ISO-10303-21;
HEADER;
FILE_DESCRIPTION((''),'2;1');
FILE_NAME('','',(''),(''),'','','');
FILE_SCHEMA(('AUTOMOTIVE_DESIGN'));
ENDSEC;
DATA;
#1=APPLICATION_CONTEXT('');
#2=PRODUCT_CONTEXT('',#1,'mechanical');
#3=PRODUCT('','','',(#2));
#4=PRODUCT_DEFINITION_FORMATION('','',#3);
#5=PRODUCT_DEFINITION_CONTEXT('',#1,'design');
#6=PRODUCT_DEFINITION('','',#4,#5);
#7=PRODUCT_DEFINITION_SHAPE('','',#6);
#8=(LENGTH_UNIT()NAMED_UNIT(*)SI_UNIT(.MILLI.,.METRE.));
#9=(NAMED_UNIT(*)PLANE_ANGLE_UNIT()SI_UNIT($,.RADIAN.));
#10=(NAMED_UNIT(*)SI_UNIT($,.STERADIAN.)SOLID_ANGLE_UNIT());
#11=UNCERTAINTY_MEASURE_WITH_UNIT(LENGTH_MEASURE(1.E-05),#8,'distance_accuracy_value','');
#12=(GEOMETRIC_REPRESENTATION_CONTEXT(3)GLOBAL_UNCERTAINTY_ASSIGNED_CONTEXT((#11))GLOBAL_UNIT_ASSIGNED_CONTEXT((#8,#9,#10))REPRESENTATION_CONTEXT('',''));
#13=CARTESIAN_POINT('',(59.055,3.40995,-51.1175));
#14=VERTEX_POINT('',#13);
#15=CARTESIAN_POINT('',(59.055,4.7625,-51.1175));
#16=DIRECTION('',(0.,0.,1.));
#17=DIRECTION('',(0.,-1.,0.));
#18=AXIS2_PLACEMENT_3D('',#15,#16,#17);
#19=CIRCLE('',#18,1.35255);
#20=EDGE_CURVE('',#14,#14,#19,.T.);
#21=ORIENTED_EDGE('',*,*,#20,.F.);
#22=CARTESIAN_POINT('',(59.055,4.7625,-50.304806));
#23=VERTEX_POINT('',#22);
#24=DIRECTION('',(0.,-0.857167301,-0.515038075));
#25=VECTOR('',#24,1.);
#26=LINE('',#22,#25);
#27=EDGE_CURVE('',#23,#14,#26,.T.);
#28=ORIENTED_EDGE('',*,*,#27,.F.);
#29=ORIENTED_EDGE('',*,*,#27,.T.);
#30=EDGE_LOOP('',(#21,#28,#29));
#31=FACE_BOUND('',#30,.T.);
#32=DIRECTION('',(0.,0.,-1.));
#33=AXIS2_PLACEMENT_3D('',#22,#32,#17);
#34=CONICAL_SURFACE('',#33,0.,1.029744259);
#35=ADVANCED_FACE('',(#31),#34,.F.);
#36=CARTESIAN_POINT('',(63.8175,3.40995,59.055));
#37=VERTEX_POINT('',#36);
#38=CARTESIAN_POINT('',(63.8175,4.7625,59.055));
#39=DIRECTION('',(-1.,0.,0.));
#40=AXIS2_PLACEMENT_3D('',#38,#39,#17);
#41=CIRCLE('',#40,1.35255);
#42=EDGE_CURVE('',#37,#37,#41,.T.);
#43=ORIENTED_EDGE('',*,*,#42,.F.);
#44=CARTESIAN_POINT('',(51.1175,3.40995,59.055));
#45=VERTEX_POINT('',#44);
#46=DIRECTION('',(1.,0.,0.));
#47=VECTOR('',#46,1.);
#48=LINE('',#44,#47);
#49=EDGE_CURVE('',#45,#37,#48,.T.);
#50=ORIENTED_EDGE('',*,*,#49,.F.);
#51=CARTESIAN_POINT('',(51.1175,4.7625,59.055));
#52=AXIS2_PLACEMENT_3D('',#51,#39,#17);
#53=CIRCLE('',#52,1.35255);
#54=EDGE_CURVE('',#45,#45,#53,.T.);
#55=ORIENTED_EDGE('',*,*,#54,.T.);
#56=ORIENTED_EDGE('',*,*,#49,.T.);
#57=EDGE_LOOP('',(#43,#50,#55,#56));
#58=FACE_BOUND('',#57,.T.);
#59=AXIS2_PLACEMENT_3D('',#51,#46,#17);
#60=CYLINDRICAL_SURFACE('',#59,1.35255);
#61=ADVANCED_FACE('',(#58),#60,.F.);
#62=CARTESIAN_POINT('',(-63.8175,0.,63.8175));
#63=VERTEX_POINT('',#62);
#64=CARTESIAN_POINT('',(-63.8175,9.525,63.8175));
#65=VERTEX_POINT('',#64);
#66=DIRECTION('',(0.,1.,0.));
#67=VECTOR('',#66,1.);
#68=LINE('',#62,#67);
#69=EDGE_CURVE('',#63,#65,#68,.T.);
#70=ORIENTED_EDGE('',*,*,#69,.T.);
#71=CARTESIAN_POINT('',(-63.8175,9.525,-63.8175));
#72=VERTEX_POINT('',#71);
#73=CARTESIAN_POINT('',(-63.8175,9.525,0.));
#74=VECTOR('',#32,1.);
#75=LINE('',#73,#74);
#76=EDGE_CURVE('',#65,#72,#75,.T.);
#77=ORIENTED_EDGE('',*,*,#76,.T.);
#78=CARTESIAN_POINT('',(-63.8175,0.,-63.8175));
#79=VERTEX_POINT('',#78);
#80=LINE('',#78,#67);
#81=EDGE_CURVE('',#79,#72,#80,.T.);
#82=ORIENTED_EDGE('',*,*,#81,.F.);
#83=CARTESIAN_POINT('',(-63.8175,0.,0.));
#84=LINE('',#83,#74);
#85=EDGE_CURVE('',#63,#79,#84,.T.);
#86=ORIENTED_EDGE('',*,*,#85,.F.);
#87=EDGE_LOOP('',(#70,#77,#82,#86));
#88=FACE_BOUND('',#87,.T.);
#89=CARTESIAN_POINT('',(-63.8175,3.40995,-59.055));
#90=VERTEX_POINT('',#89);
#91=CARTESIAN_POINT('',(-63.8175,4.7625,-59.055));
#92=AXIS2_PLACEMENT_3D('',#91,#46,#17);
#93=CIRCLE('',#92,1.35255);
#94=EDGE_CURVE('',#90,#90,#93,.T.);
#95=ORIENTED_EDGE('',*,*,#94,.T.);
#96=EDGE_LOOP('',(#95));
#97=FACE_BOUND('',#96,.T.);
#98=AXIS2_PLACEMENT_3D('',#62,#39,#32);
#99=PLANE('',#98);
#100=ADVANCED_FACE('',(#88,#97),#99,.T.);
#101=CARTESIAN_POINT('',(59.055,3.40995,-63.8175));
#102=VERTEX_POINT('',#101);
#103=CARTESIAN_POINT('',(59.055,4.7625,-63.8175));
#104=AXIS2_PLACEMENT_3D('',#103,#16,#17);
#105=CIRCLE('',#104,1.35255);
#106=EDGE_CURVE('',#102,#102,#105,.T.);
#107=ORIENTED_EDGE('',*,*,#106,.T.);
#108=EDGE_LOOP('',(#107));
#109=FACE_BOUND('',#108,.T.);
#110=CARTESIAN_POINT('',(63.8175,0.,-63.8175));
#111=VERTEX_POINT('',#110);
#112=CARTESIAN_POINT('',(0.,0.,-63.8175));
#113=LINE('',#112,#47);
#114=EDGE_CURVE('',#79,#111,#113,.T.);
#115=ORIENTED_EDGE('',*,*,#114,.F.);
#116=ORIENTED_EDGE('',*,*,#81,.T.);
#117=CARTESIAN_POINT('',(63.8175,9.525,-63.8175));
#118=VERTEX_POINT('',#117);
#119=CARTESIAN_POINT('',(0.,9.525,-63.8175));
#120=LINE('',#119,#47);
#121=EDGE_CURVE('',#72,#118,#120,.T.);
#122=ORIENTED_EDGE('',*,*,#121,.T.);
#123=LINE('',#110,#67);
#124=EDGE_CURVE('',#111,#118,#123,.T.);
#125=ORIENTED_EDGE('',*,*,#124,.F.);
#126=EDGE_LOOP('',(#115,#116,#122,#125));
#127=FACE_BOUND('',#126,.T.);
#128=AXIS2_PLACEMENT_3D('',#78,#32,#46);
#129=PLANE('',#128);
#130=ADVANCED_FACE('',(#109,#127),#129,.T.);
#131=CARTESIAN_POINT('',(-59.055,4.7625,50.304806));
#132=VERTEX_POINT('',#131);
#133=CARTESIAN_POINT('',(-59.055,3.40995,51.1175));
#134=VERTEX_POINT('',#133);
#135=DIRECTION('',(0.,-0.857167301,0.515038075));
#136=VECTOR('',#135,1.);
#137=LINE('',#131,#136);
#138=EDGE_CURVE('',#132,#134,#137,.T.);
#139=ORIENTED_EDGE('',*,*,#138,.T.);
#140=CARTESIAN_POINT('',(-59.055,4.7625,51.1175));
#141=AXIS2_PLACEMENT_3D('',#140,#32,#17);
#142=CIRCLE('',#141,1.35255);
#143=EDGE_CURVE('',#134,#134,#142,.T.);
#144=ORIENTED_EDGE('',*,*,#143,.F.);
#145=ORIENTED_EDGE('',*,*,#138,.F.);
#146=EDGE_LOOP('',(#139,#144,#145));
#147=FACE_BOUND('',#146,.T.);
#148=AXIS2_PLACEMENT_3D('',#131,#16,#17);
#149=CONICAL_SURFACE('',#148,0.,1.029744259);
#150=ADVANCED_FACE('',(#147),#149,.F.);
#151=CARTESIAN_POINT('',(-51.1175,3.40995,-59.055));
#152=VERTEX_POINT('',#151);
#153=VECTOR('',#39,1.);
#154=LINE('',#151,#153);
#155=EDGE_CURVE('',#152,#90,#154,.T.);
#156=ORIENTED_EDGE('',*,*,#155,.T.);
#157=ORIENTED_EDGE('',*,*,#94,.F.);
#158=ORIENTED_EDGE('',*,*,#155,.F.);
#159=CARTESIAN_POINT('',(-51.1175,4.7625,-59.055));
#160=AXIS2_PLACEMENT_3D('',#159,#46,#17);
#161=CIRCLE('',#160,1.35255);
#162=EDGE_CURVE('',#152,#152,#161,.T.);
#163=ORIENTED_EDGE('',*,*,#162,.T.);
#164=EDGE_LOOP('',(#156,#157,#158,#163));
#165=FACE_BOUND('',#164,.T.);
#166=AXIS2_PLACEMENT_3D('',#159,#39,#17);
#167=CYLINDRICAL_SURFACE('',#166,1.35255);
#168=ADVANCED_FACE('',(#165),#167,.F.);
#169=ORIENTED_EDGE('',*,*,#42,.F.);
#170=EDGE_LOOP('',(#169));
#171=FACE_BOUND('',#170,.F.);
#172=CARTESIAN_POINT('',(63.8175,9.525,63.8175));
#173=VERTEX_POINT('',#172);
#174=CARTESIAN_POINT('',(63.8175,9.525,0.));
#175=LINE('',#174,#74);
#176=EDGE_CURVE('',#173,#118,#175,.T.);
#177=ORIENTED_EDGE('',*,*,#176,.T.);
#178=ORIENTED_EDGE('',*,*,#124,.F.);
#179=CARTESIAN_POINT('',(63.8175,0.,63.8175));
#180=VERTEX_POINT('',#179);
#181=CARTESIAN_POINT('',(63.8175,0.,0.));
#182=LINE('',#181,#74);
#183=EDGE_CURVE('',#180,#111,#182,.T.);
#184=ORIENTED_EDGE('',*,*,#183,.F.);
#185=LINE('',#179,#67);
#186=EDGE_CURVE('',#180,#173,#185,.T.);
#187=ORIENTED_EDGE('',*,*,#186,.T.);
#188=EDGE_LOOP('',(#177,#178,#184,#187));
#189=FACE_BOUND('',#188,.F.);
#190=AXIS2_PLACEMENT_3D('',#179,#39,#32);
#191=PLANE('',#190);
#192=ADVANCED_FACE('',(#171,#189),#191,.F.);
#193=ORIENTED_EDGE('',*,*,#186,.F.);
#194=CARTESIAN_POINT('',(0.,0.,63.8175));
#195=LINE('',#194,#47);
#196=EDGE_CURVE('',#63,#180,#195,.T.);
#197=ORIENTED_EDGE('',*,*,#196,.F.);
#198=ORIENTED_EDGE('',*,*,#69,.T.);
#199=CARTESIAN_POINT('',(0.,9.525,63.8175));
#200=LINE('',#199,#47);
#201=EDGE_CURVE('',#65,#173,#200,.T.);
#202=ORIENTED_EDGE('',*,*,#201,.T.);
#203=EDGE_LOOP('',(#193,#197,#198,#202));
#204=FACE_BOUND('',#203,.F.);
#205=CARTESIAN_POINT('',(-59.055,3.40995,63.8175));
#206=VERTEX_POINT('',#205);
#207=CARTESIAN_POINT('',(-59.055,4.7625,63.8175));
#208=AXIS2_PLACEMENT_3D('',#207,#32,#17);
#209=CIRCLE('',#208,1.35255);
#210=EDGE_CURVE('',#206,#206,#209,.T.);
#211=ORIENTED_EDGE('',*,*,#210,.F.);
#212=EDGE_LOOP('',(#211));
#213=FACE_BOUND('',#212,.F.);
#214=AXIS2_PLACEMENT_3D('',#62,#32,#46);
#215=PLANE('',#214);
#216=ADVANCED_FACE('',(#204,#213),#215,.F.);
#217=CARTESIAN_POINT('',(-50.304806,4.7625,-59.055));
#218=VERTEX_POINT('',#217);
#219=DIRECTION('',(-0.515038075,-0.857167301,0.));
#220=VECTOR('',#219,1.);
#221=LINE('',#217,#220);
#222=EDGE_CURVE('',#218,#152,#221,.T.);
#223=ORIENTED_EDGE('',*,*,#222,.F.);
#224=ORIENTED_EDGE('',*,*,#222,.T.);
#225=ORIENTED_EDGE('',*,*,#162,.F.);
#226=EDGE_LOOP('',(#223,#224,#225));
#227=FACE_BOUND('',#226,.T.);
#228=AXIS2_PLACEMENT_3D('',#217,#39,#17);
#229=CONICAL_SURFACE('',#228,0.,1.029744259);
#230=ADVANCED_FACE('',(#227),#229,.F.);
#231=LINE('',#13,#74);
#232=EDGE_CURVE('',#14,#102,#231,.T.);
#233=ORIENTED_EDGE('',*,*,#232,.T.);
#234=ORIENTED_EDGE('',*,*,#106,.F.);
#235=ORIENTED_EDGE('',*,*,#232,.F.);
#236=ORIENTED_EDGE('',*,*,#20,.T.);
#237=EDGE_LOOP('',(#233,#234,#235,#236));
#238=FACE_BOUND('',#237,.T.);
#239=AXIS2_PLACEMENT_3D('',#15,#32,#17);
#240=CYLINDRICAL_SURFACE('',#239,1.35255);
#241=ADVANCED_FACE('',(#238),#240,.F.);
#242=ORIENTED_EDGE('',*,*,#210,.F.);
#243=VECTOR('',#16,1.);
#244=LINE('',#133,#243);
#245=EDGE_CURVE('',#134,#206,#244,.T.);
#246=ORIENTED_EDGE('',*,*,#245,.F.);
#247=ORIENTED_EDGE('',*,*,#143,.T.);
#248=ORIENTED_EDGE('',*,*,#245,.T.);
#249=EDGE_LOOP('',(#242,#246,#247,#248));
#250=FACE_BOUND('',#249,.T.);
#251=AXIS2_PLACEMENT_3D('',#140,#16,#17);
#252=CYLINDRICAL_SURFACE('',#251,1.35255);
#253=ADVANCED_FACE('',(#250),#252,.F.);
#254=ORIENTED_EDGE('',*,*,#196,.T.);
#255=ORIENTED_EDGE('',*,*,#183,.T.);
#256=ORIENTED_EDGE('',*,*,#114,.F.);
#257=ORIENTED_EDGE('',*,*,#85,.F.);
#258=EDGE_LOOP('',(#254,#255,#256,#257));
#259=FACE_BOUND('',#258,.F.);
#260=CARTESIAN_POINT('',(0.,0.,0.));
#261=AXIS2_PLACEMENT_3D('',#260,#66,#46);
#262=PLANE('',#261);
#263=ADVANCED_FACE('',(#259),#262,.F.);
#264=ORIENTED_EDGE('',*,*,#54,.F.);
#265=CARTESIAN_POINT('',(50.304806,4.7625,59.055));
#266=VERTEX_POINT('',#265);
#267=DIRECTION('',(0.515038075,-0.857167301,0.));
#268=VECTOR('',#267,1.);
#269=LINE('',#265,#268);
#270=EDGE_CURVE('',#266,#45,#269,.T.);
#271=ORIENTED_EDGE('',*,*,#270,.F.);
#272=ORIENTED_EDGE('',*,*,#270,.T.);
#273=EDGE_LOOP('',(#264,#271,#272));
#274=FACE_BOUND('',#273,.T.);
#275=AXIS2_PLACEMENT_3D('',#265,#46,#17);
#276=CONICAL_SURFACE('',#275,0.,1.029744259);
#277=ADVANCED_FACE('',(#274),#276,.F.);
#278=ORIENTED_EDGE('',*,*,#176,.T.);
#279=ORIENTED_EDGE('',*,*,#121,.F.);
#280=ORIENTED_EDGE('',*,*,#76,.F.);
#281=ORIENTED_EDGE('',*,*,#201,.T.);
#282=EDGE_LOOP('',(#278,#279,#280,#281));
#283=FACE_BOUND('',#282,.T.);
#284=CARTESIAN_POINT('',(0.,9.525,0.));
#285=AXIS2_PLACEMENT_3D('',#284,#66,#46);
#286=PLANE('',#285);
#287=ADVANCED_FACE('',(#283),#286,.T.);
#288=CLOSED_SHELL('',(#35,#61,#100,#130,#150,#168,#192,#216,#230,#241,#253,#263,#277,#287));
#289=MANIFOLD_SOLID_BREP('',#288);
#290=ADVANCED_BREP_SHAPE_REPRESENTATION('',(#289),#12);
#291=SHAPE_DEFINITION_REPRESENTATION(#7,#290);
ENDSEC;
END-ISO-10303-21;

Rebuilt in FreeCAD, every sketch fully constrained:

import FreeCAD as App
import Part
import Sketcher
from FreeCAD import Vector
Q = App.Units.Quantity

doc = App.newDocument("Part")
body = doc.addObject("PartDesign::Body", "Body")

sketch1 = body.newObject("Sketcher::SketchObject", "Sketch")
sketch1.AttachmentSupport = (doc.getObject("XZ_Plane"), [""])
sketch1.MapMode = "FlatFace"
sketch1.addGeometry(Part.LineSegment(Vector(-63.8175, -63.8175, 0), Vector(-63.8175, 63.8175, 0)), False)
sketch1.addGeometry(Part.LineSegment(Vector(-63.8175, 63.8175, 0), Vector(63.8175, 63.8175, 0)), False)
sketch1.addGeometry(Part.LineSegment(Vector(63.8175, 63.8175, 0), Vector(63.8175, -63.8175, 0)), False)
sketch1.addGeometry(Part.LineSegment(Vector(63.8175, -63.8175, 0), Vector(-63.8175, -63.8175, 0)), False)
sketch1.addConstraint(Sketcher.Constraint("Coincident", 0, 2, 1, 1))
sketch1.addConstraint(Sketcher.Constraint("Coincident", 1, 2, 2, 1))
sketch1.addConstraint(Sketcher.Constraint("Coincident", 2, 2, 3, 1))
sketch1.addConstraint(Sketcher.Constraint("Coincident", 3, 2, 0, 1))
sketch1.addConstraint(Sketcher.Constraint("Vertical", 0))
sketch1.addConstraint(Sketcher.Constraint("Horizontal", 1))
sketch1.addConstraint(Sketcher.Constraint("Vertical", 2))
sketch1.addConstraint(Sketcher.Constraint("Horizontal", 3))
sketch1.addConstraint(Sketcher.Constraint("Symmetric", 0, 2, 2, 2, -1, 1))
sketch1.addConstraint(Sketcher.Constraint("Equal", 3, 0))
sketch1.addConstraint(Sketcher.Constraint("DistanceX", 1, 1, 1, 2, Q("5.025 in")))
pad1 = body.newObject("PartDesign::Pad", "Pad")
pad1.Profile = sketch1
pad1.Length = Q("0.375 in")
pad1.Reversed = True

sketch2 = body.newObject("Sketcher::SketchObject", "Sketch001")
sketch2.AttachmentSupport = (doc.getObject("YZ_Plane"), [""])
sketch2.MapMode = "FlatFace"
sketch2.AttachmentOffset = App.Placement(Vector(0, 0, -2.325 * 25.4), App.Rotation())
sketch2.addGeometry(Part.LineSegment(Vector(4.7625, 50.304806, 0), Vector(4.7625, 63.8175, 0)), False)
sketch2.addGeometry(Part.LineSegment(Vector(4.7625, 63.8175, 0), Vector(3.40995, 63.8175, 0)), False)
sketch2.addGeometry(Part.LineSegment(Vector(3.40995, 63.8175, 0), Vector(3.40995, 51.1175, 0)), False)
sketch2.addGeometry(Part.LineSegment(Vector(3.40995, 51.1175, 0), Vector(4.7625, 50.304806, 0)), False)
sketch2.addGeometry(Part.LineSegment(Vector(4.7625, 63.8175, 0), Vector(4.7625, 50.304806, 0)), True)
sketch2.addConstraint(Sketcher.Constraint("Coincident", 0, 2, 1, 1))
sketch2.addConstraint(Sketcher.Constraint("Coincident", 1, 2, 2, 1))
sketch2.addConstraint(Sketcher.Constraint("Coincident", 2, 2, 3, 1))
sketch2.addConstraint(Sketcher.Constraint("Coincident", 3, 2, 0, 1))
sketch2.addConstraint(Sketcher.Constraint("Vertical", 0))
sketch2.addConstraint(Sketcher.Constraint("Horizontal", 1))
sketch2.addConstraint(Sketcher.Constraint("Vertical", 2))
sketch2.addConstraint(Sketcher.Constraint("Vertical", 4))
sketch2.addConstraint(Sketcher.Constraint("Coincident", 4, 1, 0, 2))
sketch2.addConstraint(Sketcher.Constraint("Equal", 0, 4))
sketch2.addConstraint(Sketcher.Constraint("DistanceY", 2, 2, 2, 1, Q("0.5 in")))
sketch2.addConstraint(Sketcher.Constraint("Angle", 3, Q("-31 deg")))
sketch2.addConstraint(Sketcher.Constraint("DistanceX", -1, 1, 0, 2, Q("0.1875 in")))
sketch2.addConstraint(Sketcher.Constraint("DistanceY", -1, 1, 0, 2, Q("2.5125 in")))
sketch2.addConstraint(Sketcher.Constraint("DistanceX", 1, 2, 1, 1, Q("1.35255 mm")))
groove = body.newObject("PartDesign::Groove", "Groove")
groove.Profile = sketch2
groove.ReferenceAxis = (sketch2, ["Axis0"])
groove.Angle = 360
doc.recompute()

polarpattern = body.newObject("PartDesign::PolarPattern", "PolarPattern")
polarpattern.Originals = [groove]
polarpattern.Axis = (doc.getObject("Y_Axis"), [""])
polarpattern.Angle = 360
polarpattern.Occurrences = 4
body.Tip = polarpattern

doc.recompute()
